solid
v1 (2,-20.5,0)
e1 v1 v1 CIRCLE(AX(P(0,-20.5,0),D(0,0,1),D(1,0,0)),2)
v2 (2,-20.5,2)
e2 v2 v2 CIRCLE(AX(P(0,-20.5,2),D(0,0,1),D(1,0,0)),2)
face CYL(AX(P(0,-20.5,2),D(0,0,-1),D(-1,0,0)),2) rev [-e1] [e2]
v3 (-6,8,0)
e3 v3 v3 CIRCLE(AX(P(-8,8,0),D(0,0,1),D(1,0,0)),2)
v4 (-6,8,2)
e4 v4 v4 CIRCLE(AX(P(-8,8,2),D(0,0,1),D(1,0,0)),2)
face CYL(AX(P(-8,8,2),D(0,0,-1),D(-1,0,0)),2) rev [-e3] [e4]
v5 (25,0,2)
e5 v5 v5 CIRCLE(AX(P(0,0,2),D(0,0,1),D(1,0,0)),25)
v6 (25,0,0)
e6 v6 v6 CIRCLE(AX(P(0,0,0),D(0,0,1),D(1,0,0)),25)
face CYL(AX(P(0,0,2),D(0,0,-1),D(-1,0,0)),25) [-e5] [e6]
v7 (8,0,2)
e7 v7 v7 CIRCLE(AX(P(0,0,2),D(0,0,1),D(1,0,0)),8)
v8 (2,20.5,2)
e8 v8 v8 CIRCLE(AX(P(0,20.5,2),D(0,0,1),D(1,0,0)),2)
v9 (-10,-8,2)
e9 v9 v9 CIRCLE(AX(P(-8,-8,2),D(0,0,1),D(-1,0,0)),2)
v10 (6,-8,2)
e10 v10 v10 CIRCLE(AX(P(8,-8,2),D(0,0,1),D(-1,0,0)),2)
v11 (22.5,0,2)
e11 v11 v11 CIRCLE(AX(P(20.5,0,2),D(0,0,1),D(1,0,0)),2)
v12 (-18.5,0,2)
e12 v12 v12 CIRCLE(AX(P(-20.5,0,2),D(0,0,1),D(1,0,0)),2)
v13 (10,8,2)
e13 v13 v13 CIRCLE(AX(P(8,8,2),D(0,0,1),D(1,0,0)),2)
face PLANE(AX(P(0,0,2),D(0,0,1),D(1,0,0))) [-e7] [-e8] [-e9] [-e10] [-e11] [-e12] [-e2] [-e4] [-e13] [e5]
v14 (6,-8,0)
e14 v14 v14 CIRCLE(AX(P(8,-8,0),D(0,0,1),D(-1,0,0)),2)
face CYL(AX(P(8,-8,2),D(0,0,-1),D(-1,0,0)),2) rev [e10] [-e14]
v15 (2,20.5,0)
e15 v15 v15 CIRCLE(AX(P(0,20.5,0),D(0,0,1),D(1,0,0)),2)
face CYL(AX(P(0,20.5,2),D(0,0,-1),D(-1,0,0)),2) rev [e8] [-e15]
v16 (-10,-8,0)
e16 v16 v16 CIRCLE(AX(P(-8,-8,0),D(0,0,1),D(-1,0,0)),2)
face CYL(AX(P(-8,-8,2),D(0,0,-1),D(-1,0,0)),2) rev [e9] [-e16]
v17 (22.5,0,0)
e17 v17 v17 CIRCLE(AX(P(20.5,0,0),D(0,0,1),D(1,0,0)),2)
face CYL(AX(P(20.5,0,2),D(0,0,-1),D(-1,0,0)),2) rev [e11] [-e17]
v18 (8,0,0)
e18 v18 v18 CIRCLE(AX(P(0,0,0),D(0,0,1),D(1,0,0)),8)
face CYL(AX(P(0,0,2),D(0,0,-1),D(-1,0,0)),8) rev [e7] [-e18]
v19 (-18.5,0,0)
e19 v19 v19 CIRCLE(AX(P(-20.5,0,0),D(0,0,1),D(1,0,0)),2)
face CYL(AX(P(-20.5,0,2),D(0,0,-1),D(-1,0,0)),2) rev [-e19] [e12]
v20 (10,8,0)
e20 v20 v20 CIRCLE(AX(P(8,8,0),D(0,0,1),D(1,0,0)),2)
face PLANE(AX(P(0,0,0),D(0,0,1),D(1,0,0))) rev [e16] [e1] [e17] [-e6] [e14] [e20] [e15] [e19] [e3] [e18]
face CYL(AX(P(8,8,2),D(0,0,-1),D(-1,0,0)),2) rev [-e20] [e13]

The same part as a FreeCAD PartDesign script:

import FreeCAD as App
import Part
import Sketcher
from FreeCAD import Vector

doc = App.newDocument("Part")
body = doc.addObject("PartDesign::Body", "Body")

# Sketch on XY plane
sketch1 = body.newObject("Sketcher::SketchObject", "Sketch")
sketch1.AttachmentSupport = (doc.getObject("XY_Plane"), [""])
sketch1.MapMode = "FlatFace"
sketch1.addGeometry(Part.Circle(Vector(0, 0, 0), Vector(0, 0, 1), 25), False)
sketch1.addGeometry(Part.Circle(Vector(-8, -8, 0), Vector(0, 0, 1), 2), False)
sketch1.addGeometry(Part.Circle(Vector(0, -20.5, 0), Vector(0, 0, 1), 2), False)
sketch1.addGeometry(Part.Circle(Vector(8, -8, 0), Vector(0, 0, 1), 2), False)
sketch1.addGeometry(Part.Circle(Vector(-20.5, 0, 0), Vector(0, 0, 1), 2), False)
sketch1.addGeometry(Part.Circle(Vector(-8, 8, 0), Vector(0, 0, 1), 2), False)
sketch1.addGeometry(Part.Circle(Vector(0, 0, 0), Vector(0, 0, 1), 8), False)
sketch1.addGeometry(Part.Circle(Vector(8, 8, 0), Vector(0, 0, 1), 2), False)
sketch1.addGeometry(Part.Circle(Vector(20.5, 0, 0), Vector(0, 0, 1), 2), False)
sketch1.addGeometry(Part.Circle(Vector(0, 20.5, 0), Vector(0, 0, 1), 2), False)
sketch1.addConstraint(Sketcher.Constraint("Coincident", 0, 3, -1, 1))
sketch1.addConstraint(Sketcher.Constraint("Coincident", 6, 3, -1, 1))
sketch1.addConstraint(Sketcher.Constraint("Equal", 1, 2))
sketch1.addConstraint(Sketcher.Constraint("Equal", 2, 3))
sketch1.addConstraint(Sketcher.Constraint("Equal", 3, 4))
sketch1.addConstraint(Sketcher.Constraint("Equal", 4, 5))
sketch1.addConstraint(Sketcher.Constraint("Equal", 5, 7))
sketch1.addConstraint(Sketcher.Constraint("Equal", 7, 8))
sketch1.addConstraint(Sketcher.Constraint("Equal", 8, 9))
sketch1.addConstraint(Sketcher.Constraint("Symmetric", 3, 3, 5, 3, -1, 1))
sketch1.addConstraint(Sketcher.Constraint("Symmetric", 1, 3, 7, 3, -1, 1))
sketch1.addConstraint(Sketcher.Constraint("Symmetric", 4, 3, 8, 3, -1, 1))
sketch1.addConstraint(Sketcher.Constraint("Symmetric", 2, 3, 9, 3, -1, 1))
sketch1.addConstraint(Sketcher.Constraint("Symmetric", 1, 3, 3, 3, -2))
sketch1.addConstraint(Sketcher.Constraint("PointOnObject", 2, 3, -2))
sketch1.addConstraint(Sketcher.Constraint("PointOnObject", 4, 3, -1))
sketch1.addConstraint(Sketcher.Constraint("Diameter", 0, 50.0))
sketch1.addConstraint(Sketcher.Constraint("Diameter", 1, 4.0))
sketch1.addConstraint(Sketcher.Constraint("Diameter", 6, 16.0))
sketch1.addConstraint(Sketcher.Constraint("DistanceX", 1, 3, -1, 1, 8.0))
sketch1.addConstraint(Sketcher.Constraint("DistanceY", 1, 3, -1, 1, 8.0))
sketch1.addConstraint(Sketcher.Constraint("DistanceY", 2, 3, -1, 1, 20.5))
sketch1.addConstraint(Sketcher.Constraint("DistanceX", 4, 3, -1, 1, 20.5))
pad1 = body.newObject("PartDesign::Pad", "Pad")
pad1.Profile = sketch1
pad1.Length = 2

doc.recompute()
